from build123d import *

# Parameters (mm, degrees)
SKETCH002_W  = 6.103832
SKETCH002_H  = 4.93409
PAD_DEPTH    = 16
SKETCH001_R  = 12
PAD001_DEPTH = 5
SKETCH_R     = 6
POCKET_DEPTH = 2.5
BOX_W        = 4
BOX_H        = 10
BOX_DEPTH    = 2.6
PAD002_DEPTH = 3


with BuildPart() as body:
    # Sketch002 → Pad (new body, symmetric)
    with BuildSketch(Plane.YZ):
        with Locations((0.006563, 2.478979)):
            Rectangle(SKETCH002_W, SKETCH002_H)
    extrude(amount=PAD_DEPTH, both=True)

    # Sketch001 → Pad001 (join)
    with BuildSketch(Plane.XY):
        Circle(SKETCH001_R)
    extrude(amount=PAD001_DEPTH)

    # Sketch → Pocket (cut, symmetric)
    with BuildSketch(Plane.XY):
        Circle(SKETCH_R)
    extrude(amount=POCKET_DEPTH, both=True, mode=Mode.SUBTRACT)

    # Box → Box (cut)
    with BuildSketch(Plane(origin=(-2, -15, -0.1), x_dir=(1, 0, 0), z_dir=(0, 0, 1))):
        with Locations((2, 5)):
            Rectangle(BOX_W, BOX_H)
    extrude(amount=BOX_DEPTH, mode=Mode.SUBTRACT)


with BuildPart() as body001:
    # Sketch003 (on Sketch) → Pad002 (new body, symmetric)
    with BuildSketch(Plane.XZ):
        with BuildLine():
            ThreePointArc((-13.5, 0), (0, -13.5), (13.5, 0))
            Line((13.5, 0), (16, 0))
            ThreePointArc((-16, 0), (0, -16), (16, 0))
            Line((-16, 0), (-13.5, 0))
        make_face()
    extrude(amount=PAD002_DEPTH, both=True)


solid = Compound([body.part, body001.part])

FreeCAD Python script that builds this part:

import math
import FreeCAD as App
import Part
import Sketcher
Q = App.Units.Quantity

doc = App.newDocument("Part")
params = doc.addObject("Spreadsheet::Sheet", "Params")
for row, (alias, value) in enumerate([
    ("pad1_length", "32 mm"),
    ("sketch2_diameter", "24 mm"),
    ("pad2_length", "5 mm"),
    ("sketch3_diameter", "12 mm"),
    ("pocket1_length", "5 mm"),
    ("sketch4_width", "4 mm"),
    ("sketch4_height", "10 mm"),
    ("pocket2_length", "2.6 mm"),
    ("sketch5_radius", "16 mm"),
    ("sketch5_radius2", "13.5 mm"),
    ("pad3_length", "6 mm"),
], start=1):
    params.set(f"A{row}", alias)
    params.set(f"B{row}", "=" + value)
    params.setAlias(f"B{row}", alias)

body = doc.addObject("PartDesign::Body", "Body")

# Sketch on YZ plane
sketch1 = body.newObject("Sketcher::SketchObject", "Sketch")
sketch1.AttachmentSupport = (doc.getObject("YZ_Plane"), [""])
sketch1.MapMode = "FlatFace"
sketch1.addGeometry([
    Part.LineSegment(App.Vector(-3, 4.9, 0), App.Vector(-3, 0, 0)),
    Part.LineSegment(App.Vector(-3, 0, 0), App.Vector(3.1, 0, 0)),
    Part.LineSegment(App.Vector(3.1, 0, 0), App.Vector(3.1, 4.9, 0)),
    Part.LineSegment(App.Vector(3.1, 4.9, 0), App.Vector(-3, 4.9, 0)),
], False)
sketch1.addConstraint([
    Sketcher.Constraint("Coincident", 0, 2, 1, 1),
    Sketcher.Constraint("Coincident", 1, 2, 2, 1),
    Sketcher.Constraint("Coincident", 2, 2, 3, 1),
    Sketcher.Constraint("Coincident", 3, 2, 0, 1),
    Sketcher.Constraint("Vertical", 0),
    Sketcher.Constraint("Horizontal", 1),
    Sketcher.Constraint("Vertical", 2),
    Sketcher.Constraint("Horizontal", 3),
    Sketcher.Constraint("DistanceY", 0, 2, 0, 1, Q("4.93409 mm")),
    Sketcher.Constraint("DistanceX", 1, 1, 1, 2, Q("6.103832 mm")),
    Sketcher.Constraint("DistanceX", -1, 1, 1, 2, Q("3.058479 mm")),
    Sketcher.Constraint("DistanceY", -1, 1, 0, 2, Q("0.011934 mm")),
])
pad1 = body.newObject("PartDesign::Pad", "Pad")
pad1.Profile = sketch1
pad1.setExpression("Length", "Params.pad1_length")
pad1.Midplane = True

# Sketch on XY plane
sketch2 = body.newObject("Sketcher::SketchObject", "Sketch001")
sketch2.AttachmentSupport = (doc.getObject("XY_Plane"), [""])
sketch2.MapMode = "FlatFace"
sketch2.addGeometry(Part.Circle(App.Vector(0, 0, 0), App.Vector(0, 0, 1), 12), False)
sketch2.addConstraint([
    Sketcher.Constraint("Coincident", 0, 3, -1, 1),
    Sketcher.Constraint("Diameter", 0, Q("24 mm")),
])
sketch2.setExpression("Constraints[1]", "Params.sketch2_diameter")
pad2 = body.newObject("PartDesign::Pad", "Pad001")
pad2.Profile = sketch2
pad2.setExpression("Length", "Params.pad2_length")

# Sketch on XY plane
sketch3 = body.newObject("Sketcher::SketchObject", "Sketch002")
sketch3.AttachmentSupport = (doc.getObject("XY_Plane"), [""])
sketch3.MapMode = "FlatFace"
sketch3.addGeometry(Part.Circle(App.Vector(0, 0, 0), App.Vector(0, 0, 1), 6), False)
sketch3.addConstraint([
    Sketcher.Constraint("Coincident", 0, 3, -1, 1),
    Sketcher.Constraint("Diameter", 0, Q("12 mm")),
])
sketch3.setExpression("Constraints[1]", "Params.sketch3_diameter")
pocket1 = body.newObject("PartDesign::Pocket", "Pocket")
pocket1.Profile = sketch3
pocket1.setExpression("Length", "Params.pocket1_length")
pocket1.Midplane = True

# Sketch on XY plane
sketch4 = body.newObject("Sketcher::SketchObject", "Sketch003")
sketch4.AttachmentSupport = (doc.getObject("XY_Plane"), [""])
sketch4.MapMode = "FlatFace"
sketch4.AttachmentOffset = App.Placement(App.Vector(0, 0, -0.1), App.Rotation())
sketch4.addGeometry([
    Part.LineSegment(App.Vector(-2, -5, 0), App.Vector(-2, -15, 0)),
    Part.LineSegment(App.Vector(-2, -15, 0), App.Vector(2, -15, 0)),
    Part.LineSegment(App.Vector(2, -15, 0), App.Vector(2, -5, 0)),
    Part.LineSegment(App.Vector(2, -5, 0), App.Vector(-2, -5, 0)),
], False)
sketch4.addConstraint([
    Sketcher.Constraint("Coincident", 0, 2, 1, 1),
    Sketcher.Constraint("Coincident", 1, 2, 2, 1),
    Sketcher.Constraint("Coincident", 2, 2, 3, 1),
    Sketcher.Constraint("Coincident", 3, 2, 0, 1),
    Sketcher.Constraint("Vertical", 0),
    Sketcher.Constraint("Horizontal", 1),
    Sketcher.Constraint("Vertical", 2),
    Sketcher.Constraint("Horizontal", 3),
    Sketcher.Constraint("DistanceX", 1, 1, 1, 2, Q("4 mm")),
    Sketcher.Constraint("DistanceY", 0, 2, 0, 1, Q("10 mm")),
    Sketcher.Constraint("DistanceX", 0, 2, -1, 1, Q("2 mm")),
    Sketcher.Constraint("DistanceY", 0, 2, -1, 1, Q("15 mm")),
])
sketch4.setExpression("Constraints[8]", "Params.sketch4_width")
sketch4.setExpression("Constraints[9]", "Params.sketch4_height")
pocket2 = body.newObject("PartDesign::Pocket", "Pocket001")
pocket2.Profile = sketch4
pocket2.setExpression("Length", "Params.pocket2_length")
pocket2.Reversed = True
body2 = doc.addObject("PartDesign::Body", "Body001")

# Sketch on XZ plane
sketch5 = body2.newObject("Sketcher::SketchObject", "Sketch004")
sketch5.AttachmentSupport = (doc.getObject("XZ_Plane001"), [""])
sketch5.MapMode = "FlatFace"
sketch5.addGeometry([
    Part.ArcOfCircle(Part.Circle(App.Vector(0, 0, 0), App.Vector(0, 0, 1), 13.5), math.radians(180), math.radians(360)),
    Part.LineSegment(App.Vector(-13.5, 0, 0), App.Vector(-16, 0, 0)),
    Part.ArcOfCircle(Part.Circle(App.Vector(0, 0, 0), App.Vector(0, 0, 1), 16), math.radians(180), math.radians(360)),
    Part.LineSegment(App.Vector(16, 0, 0), App.Vector(13.5, 0, 0)),
], False)
sketch5.addConstraint([
    Sketcher.Constraint("Coincident", 0, 1, 1, 1),
    Sketcher.Constraint("Coincident", 1, 2, 2, 1),
    Sketcher.Constraint("Coincident", 2, 2, 3, 1),
    Sketcher.Constraint("Coincident", 3, 2, 0, 2),
    Sketcher.Constraint("Horizontal", 1),
    Sketcher.Constraint("Horizontal", 3),
    Sketcher.Constraint("Coincident", 0, 3, -1, 1),
    Sketcher.Constraint("Coincident", 2, 3, -1, 1),
    Sketcher.Constraint("PointOnObject", 0, 1, -1),
    Sketcher.Constraint("PointOnObject", 2, 2, -1),
    Sketcher.Constraint("Radius", 2, Q("16 mm")),
    Sketcher.Constraint("Radius", 0, Q("13.5 mm")),
])
sketch5.setExpression("Constraints[10]", "Params.sketch5_radius")
sketch5.setExpression("Constraints[11]", "Params.sketch5_radius2")
pad3 = body2.newObject("PartDesign::Pad", "Pad002")
pad3.Profile = sketch5
pad3.setExpression("Length", "Params.pad3_length")
pad3.Midplane = True

doc.recompute()
